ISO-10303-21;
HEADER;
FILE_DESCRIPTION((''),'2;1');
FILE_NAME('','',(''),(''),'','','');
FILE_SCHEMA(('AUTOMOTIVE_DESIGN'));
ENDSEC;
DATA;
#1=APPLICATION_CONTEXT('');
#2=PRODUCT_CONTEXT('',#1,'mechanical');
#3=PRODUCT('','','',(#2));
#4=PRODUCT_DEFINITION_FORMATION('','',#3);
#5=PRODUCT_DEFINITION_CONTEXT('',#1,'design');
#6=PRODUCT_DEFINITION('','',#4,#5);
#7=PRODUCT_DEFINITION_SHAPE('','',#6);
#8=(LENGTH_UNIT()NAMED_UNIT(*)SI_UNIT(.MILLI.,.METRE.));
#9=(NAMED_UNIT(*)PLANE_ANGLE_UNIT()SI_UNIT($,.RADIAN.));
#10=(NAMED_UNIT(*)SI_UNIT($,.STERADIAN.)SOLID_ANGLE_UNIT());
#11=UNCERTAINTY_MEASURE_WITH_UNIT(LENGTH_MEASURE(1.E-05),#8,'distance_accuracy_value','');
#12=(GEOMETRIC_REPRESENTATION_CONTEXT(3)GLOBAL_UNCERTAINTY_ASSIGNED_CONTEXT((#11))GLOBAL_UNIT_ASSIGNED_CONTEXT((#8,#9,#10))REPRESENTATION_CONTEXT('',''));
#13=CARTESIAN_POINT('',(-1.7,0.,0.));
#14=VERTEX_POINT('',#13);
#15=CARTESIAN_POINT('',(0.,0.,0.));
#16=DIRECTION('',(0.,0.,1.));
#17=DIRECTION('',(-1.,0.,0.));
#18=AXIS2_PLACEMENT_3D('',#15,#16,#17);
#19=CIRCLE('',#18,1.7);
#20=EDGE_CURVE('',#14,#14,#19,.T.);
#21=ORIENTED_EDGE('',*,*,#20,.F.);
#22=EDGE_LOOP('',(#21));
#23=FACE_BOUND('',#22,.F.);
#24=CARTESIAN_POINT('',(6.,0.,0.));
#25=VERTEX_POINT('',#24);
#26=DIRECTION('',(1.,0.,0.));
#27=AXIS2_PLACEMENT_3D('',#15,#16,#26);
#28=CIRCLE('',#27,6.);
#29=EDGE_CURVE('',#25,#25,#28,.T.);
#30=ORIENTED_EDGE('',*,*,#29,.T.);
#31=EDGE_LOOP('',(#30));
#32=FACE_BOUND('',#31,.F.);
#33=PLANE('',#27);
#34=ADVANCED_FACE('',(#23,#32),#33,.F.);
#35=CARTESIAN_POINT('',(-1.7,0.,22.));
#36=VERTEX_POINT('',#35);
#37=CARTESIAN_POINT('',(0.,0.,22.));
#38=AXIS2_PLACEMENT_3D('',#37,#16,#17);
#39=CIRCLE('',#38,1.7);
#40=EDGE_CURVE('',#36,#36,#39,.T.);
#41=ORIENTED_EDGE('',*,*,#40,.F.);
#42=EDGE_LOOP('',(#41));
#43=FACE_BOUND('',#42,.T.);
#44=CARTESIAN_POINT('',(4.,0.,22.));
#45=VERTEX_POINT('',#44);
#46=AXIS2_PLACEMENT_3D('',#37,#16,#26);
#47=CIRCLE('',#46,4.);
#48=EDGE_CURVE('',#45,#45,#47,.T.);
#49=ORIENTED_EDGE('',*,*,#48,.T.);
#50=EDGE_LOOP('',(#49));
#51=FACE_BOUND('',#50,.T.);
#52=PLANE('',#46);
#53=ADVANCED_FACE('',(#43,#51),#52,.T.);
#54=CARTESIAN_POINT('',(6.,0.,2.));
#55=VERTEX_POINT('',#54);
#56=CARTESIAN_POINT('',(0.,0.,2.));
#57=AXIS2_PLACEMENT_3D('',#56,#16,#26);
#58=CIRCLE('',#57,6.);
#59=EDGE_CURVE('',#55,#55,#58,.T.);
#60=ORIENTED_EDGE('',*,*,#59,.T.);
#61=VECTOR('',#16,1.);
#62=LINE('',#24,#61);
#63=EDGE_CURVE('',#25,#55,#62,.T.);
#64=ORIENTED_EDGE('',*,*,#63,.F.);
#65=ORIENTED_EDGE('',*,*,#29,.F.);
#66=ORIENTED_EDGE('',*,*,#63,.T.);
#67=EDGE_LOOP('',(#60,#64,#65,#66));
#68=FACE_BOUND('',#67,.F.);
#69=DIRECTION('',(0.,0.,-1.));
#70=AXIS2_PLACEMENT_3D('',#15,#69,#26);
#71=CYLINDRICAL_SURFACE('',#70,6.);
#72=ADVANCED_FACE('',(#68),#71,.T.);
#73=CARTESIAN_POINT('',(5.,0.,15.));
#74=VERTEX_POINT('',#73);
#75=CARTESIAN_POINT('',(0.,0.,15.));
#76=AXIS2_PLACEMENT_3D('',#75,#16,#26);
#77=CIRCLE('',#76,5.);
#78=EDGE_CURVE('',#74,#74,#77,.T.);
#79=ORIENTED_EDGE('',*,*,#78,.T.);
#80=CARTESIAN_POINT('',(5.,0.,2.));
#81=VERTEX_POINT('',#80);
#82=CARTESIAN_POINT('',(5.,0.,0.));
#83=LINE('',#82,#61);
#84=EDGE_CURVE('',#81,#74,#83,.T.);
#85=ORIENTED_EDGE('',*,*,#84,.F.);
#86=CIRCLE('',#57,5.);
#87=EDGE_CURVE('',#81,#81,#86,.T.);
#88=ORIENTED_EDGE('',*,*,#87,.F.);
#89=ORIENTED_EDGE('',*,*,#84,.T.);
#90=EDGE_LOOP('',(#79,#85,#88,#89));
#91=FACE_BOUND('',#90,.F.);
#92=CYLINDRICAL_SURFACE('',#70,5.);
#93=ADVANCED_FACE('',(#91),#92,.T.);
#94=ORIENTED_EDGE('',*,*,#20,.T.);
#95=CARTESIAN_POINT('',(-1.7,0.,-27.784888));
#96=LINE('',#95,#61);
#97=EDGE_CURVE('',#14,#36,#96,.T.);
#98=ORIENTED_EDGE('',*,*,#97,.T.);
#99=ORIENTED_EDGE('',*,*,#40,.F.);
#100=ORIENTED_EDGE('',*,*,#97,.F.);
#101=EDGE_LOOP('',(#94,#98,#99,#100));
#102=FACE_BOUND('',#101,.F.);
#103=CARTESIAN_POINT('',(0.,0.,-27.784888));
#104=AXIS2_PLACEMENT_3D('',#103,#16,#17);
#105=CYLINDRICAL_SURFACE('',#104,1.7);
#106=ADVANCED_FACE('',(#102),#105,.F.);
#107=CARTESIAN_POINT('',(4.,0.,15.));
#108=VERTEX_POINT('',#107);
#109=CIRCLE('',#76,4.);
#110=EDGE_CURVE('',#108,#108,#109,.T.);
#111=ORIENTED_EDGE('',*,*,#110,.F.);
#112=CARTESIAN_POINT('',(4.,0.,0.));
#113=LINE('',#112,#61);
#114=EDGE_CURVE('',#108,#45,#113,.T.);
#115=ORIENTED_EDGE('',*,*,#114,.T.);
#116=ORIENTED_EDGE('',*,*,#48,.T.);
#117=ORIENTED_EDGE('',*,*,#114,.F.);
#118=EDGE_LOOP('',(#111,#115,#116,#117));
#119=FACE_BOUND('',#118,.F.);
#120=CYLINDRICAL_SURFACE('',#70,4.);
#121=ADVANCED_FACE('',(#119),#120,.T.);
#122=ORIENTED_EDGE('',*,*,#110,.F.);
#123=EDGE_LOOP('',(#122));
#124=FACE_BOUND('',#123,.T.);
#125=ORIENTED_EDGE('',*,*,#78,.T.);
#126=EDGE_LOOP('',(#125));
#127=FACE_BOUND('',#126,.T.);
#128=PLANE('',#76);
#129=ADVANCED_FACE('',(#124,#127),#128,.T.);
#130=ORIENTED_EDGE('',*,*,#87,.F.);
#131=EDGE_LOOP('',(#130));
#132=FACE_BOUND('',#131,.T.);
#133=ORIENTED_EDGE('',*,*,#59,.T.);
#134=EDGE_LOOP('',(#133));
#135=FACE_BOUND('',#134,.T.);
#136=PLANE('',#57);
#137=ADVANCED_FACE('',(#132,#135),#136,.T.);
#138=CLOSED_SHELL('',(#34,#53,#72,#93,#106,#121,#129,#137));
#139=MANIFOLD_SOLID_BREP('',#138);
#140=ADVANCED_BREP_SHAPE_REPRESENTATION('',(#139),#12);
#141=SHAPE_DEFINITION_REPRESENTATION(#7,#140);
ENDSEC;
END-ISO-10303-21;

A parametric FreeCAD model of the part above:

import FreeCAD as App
import Part
import Sketcher
from FreeCAD import Vector

doc = App.newDocument("Part")
params = doc.addObject("Spreadsheet::Sheet", "Params")
for row, (alias, value) in enumerate([
    ("sketch1_diameter", "8 mm"),
    ("pad1_length", "22 mm"),
    ("sketch2_diameter", "10 mm"),
    ("sketch2_diameter2", "8 mm"),
    ("pad2_length", "15 mm"),
    ("sketch3_diameter", "12 mm"),
    ("sketch3_diameter2", "10 mm"),
    ("pad3_length", "2 mm"),
    ("sketch4_diameter", "3.4 mm"),
    ("hole_diameter", "3.4 mm"),
], start=1):
    params.set(f"A{row}", alias)
    params.set(f"B{row}", "=" + value)
    params.setAlias(f"B{row}", alias)

body = doc.addObject("PartDesign::Body", "Body")

# Sketch on XY plane
sketch1 = doc.addObject("Sketcher::SketchObject", "Sketch")
body.addObject(sketch1)
sketch1.AttachmentSupport = (doc.XY_Plane, [""])
sketch1.MapMode = "FlatFace"
sketch1.addGeometry(Part.Circle(Vector(0, 0, 0), Vector(0, 0, 1), 4), False)
sketch1.addConstraint([
    Sketcher.Constraint("Coincident", 0, 3, -1, 1),
    Sketcher.Constraint("Diameter", 0, 8.0),
])
sketch1.setExpression("Constraints[1]", "Params.sketch1_diameter")
pad1 = doc.addObject("PartDesign::Pad", "Pad")
body.addObject(pad1)
pad1.Profile = sketch1
pad1.setExpression("Length", "Params.pad1_length")

# Sketch on XY plane
sketch2 = doc.addObject("Sketcher::SketchObject", "Sketch001")
body.addObject(sketch2)
sketch2.AttachmentSupport = (doc.XY_Plane, [""])
sketch2.MapMode = "FlatFace"
sketch2.addGeometry([
    Part.Circle(Vector(0, 0, 0), Vector(0, 0, 1), 5),
    Part.Circle(Vector(0, 0, 0), Vector(0, 0, 1), 4),
], False)
sketch2.addConstraint([
    Sketcher.Constraint("Coincident", 0, 3, -1, 1),
    Sketcher.Constraint("Coincident", 1, 3, -1, 1),
    Sketcher.Constraint("Diameter", 0, 10.0),
    Sketcher.Constraint("Diameter", 1, 8.0),
])
sketch2.setExpression("Constraints[2]", "Params.sketch2_diameter")
sketch2.setExpression("Constraints[3]", "Params.sketch2_diameter2")
pad2 = doc.addObject("PartDesign::Pad", "Pad001")
body.addObject(pad2)
pad2.Profile = sketch2
pad2.setExpression("Length", "Params.pad2_length")

# Sketch on XY plane
sketch3 = doc.addObject("Sketcher::SketchObject", "Sketch002")
body.addObject(sketch3)
sketch3.AttachmentSupport = (doc.XY_Plane, [""])
sketch3.MapMode = "FlatFace"
sketch3.addGeometry([
    Part.Circle(Vector(0, 0, 0), Vector(0, 0, 1), 6),
    Part.Circle(Vector(0, 0, 0), Vector(0, 0, 1), 5),
], False)
sketch3.addConstraint([
    Sketcher.Constraint("Coincident", 0, 3, -1, 1),
    Sketcher.Constraint("Coincident", 1, 3, -1, 1),
    Sketcher.Constraint("Diameter", 0, 12.0),
    Sketcher.Constraint("Diameter", 1, 10.0),
])
sketch3.setExpression("Constraints[2]", "Params.sketch3_diameter")
sketch3.setExpression("Constraints[3]", "Params.sketch3_diameter2")
pad3 = doc.addObject("PartDesign::Pad", "Pad002")
body.addObject(pad3)
pad3.Profile = sketch3
pad3.setExpression("Length", "Params.pad3_length")

# Sketch on XY plane
sketch4 = doc.addObject("Sketcher::SketchObject", "Sketch003")
body.addObject(sketch4)
sketch4.AttachmentSupport = (doc.XY_Plane, [""])
sketch4.MapMode = "FlatFace"
sketch4.addGeometry(Part.Circle(Vector(0, 0, 0), Vector(0, 0, 1), 1.7), False)
sketch4.addConstraint([
    Sketcher.Constraint("Coincident", 0, 3, -1, 1),
    Sketcher.Constraint("Diameter", 0, 3.4),
])
sketch4.setExpression("Constraints[1]", "Params.sketch4_diameter")
doc.recompute()
hole = doc.addObject("PartDesign::Hole", "Hole")
body.addObject(hole)
hole.Profile = sketch4
hole.ThreadType = "None"
hole.setExpression("Diameter", "Params.hole_diameter")
hole.DepthType = "ThroughAll"
hole.Reversed = True

doc.recompute()
